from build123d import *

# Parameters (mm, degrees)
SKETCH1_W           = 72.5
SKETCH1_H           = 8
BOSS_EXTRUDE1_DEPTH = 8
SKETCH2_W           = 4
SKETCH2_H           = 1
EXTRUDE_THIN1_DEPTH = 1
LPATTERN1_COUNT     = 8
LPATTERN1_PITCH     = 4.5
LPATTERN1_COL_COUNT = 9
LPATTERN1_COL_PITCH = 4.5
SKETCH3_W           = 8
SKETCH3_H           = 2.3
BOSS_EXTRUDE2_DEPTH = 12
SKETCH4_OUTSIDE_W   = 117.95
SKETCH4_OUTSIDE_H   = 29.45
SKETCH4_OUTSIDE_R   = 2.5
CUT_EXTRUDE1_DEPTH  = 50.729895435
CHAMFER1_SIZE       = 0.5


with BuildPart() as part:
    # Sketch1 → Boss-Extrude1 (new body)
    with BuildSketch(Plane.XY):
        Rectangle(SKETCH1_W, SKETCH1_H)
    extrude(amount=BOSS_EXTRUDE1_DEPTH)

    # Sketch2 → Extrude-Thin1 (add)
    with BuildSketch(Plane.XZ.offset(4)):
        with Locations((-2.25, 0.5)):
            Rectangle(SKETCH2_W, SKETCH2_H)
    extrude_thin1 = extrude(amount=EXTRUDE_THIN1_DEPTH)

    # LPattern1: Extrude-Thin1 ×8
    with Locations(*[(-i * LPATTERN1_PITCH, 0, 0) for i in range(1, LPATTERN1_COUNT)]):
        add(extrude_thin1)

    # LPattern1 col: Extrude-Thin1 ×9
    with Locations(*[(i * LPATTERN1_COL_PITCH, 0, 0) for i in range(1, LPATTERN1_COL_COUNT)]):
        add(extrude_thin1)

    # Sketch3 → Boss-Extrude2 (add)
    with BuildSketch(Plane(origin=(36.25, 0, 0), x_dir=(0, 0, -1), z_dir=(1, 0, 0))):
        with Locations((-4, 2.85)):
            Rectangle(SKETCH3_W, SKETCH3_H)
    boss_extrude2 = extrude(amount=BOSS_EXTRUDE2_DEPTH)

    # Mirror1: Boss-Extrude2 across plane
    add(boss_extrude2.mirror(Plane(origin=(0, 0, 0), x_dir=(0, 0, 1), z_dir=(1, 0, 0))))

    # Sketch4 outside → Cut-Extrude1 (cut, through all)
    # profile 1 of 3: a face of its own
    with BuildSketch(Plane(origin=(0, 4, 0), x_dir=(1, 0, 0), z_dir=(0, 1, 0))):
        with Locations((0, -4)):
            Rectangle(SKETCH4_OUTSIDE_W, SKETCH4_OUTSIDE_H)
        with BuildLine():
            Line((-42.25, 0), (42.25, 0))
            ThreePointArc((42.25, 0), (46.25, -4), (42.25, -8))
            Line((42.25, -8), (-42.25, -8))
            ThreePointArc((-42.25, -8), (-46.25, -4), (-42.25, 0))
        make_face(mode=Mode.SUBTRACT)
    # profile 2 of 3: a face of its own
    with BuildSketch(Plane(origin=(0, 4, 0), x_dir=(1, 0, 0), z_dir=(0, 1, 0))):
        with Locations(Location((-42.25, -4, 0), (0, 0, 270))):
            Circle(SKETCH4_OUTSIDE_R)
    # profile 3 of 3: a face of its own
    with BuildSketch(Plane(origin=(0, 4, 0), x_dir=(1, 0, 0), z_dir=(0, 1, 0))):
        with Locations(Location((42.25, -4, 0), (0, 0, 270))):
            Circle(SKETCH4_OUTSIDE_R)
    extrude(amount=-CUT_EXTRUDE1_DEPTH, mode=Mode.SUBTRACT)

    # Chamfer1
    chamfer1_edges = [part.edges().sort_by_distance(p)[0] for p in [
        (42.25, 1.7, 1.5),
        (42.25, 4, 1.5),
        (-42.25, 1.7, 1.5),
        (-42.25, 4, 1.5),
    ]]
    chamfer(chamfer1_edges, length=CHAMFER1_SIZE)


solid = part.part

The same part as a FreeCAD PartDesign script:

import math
import FreeCAD as App
import Part
import Sketcher
from FreeCAD import Vector


def edges_at(feature, points):
    """Names of the edges that pass closest to the given points."""
    edges = feature.Shape.Edges
    near = lambda p: min(range(len(edges)), key=lambda i: edges[i].distToShape(Part.Vertex(*p))[0])
    return sorted({f"Edge{near(p) + 1}" for p in points})

doc = App.newDocument("Part")
params = doc.addObject("Spreadsheet::Sheet", "Params")
for row, (alias, value) in enumerate([
    ("sketch1_height", "8 mm"),
    ("sketch1_width", "72.5 mm"),
    ("pad1_length", "8 mm"),
    ("sketch2_width", "4 mm"),
    ("sketch2_height", "1 mm"),
    ("pad2_length", "1 mm"),
    ("linearpattern_pitch", "4.5 mm"),
    ("linearpattern2_pitch", "4.5 mm"),
    ("sketch3_height", "8 mm"),
    ("sketch3_width", "2.3 mm"),
    ("pad3_length", "12 mm"),
    ("sketch4_diameter", "5 mm"),
    ("sketch4_radius", "4 mm"),
    ("sketch4_width", "84.5 mm"),
    ("sketch4_width2", "117.95 mm"),
    ("sketch4_height", "29.45 mm"),
    ("pocket1_length", "50.729895 mm"),
    ("chamfer_size", "0.5 mm"),
], start=1):
    params.set(f"A{row}", alias)
    params.set(f"B{row}", "=" + value)
    params.setAlias(f"B{row}", alias)

body = doc.addObject("PartDesign::Body", "Body")

# Sketch on XY plane
sketch1 = body.newObject("Sketcher::SketchObject", "Sketch")
sketch1.AttachmentSupport = (doc.getObject("XY_Plane"), [""])
sketch1.MapMode = "FlatFace"
sketch1.addGeometry([
    Part.LineSegment(Vector(-36.25, 4, 0), Vector(-36.25, -4, 0)),
    Part.LineSegment(Vector(-36.25, -4, 0), Vector(36.25, -4, 0)),
    Part.LineSegment(Vector(36.25, -4, 0), Vector(36.25, 4, 0)),
    Part.LineSegment(Vector(36.25, 4, 0), Vector(-36.25, 4, 0)),
], False)
sketch1.addConstraint([
    Sketcher.Constraint("Coincident", 0, 2, 1, 1),
    Sketcher.Constraint("Coincident", 1, 2, 2, 1),
    Sketcher.Constraint("Coincident", 2, 2, 3, 1),
    Sketcher.Constraint("Coincident", 3, 2, 0, 1),
    Sketcher.Constraint("Vertical", 0),
    Sketcher.Constraint("Horizontal", 1),
    Sketcher.Constraint("Vertical", 2),
    Sketcher.Constraint("Horizontal", 3),
    Sketcher.Constraint("Symmetric", 0, 2, 2, 2, -1, 1),
    Sketcher.Constraint("DistanceY", 0, 2, 0, 1, 8.0),
    Sketcher.Constraint("DistanceX", 1, 1, 1, 2, 72.5),
])
sketch1.setExpression("Constraints[9]", "Params.sketch1_height")
sketch1.setExpression("Constraints[10]", "Params.sketch1_width")
pad1 = body.newObject("PartDesign::Pad", "Pad")
pad1.Profile = sketch1
pad1.setExpression("Length", "Params.pad1_length")

# Sketch on XZ plane
sketch2 = body.newObject("Sketcher::SketchObject", "Sketch001")
sketch2.AttachmentSupport = (doc.getObject("XZ_Plane"), [""])
sketch2.MapMode = "FlatFace"
sketch2.AttachmentOffset = App.Placement(Vector(0, 0, 4), App.Rotation())
sketch2.addGeometry([
    Part.LineSegment(Vector(-4.25, 1, 0), Vector(-4.25, 0, 0)),
    Part.LineSegment(Vector(-4.25, 0, 0), Vector(-0.25, 0, 0)),
    Part.LineSegment(Vector(-0.25, 0, 0), Vector(-0.25, 1, 0)),
    Part.LineSegment(Vector(-0.25, 1, 0), Vector(-4.25, 1, 0)),
], False)
sketch2.addConstraint([
    Sketcher.Constraint("Coincident", 0, 2, 1, 1),
    Sketcher.Constraint("Coincident", 1, 2, 2, 1),
    Sketcher.Constraint("Coincident", 2, 2, 3, 1),
    Sketcher.Constraint("Coincident", 3, 2, 0, 1),
    Sketcher.Constraint("Vertical", 0),
    Sketcher.Constraint("Horizontal", 1),
    Sketcher.Constraint("Vertical", 2),
    Sketcher.Constraint("Horizontal", 3),
    Sketcher.Constraint("PointOnObject", 0, 2, -1),
    Sketcher.Constraint("DistanceX", 1, 1, 1, 2, 4.0),
    Sketcher.Constraint("DistanceY", 0, 2, 0, 1, 1.0),
    Sketcher.Constraint("DistanceX", 0, 2, -1, 1, 4.25),
])
sketch2.setExpression("Constraints[9]", "Params.sketch2_width")
sketch2.setExpression("Constraints[10]", "Params.sketch2_height")
pad2 = body.newObject("PartDesign::Pad", "Pad001")
pad2.Profile = sketch2
pad2.setExpression("Length", "Params.pad2_length")
doc.recompute()

linearpattern = body.newObject("PartDesign::LinearPattern", "LinearPattern")
linearpattern.Originals = [pad2]
linearpattern.Direction = (doc.getObject("X_Axis"), [""])
linearpattern.Mode = "offset"
linearpattern.setExpression("Offset", "Params.linearpattern_pitch")
linearpattern.Occurrences = 8
linearpattern.Reversed = True
body.Tip = linearpattern
doc.recompute()

linearpattern2 = body.newObject("PartDesign::LinearPattern", "LinearPattern001")
linearpattern2.Originals = [pad2]
linearpattern2.Direction = (doc.getObject("X_Axis"), [""])
linearpattern2.Mode = "offset"
linearpattern2.setExpression("Offset", "Params.linearpattern2_pitch")
linearpattern2.Occurrences = 9
body.Tip = linearpattern2

# Sketch on YZ plane
sketch3 = body.newObject("Sketcher::SketchObject", "Sketch002")
sketch3.AttachmentSupport = (doc.getObject("YZ_Plane"), [""])
sketch3.MapMode = "FlatFace"
sketch3.AttachmentOffset = App.Placement(Vector(0, 0, 36.25), App.Rotation())
sketch3.addGeometry([
    Part.LineSegment(Vector(4, 8, 0), Vector(1.7, 8, 0)),
    Part.LineSegment(Vector(1.7, 8, 0), Vector(1.7, 0, 0)),
    Part.LineSegment(Vector(1.7, 0, 0), Vector(4, 0, 0)),
    Part.LineSegment(Vector(4, 0, 0), Vector(4, 8, 0)),
], False)
sketch3.addConstraint([
    Sketcher.Constraint("Coincident", 0, 2, 1, 1),
    Sketcher.Constraint("Coincident", 1, 2, 2, 1),
    Sketcher.Constraint("Coincident", 2, 2, 3, 1),
    Sketcher.Constraint("Coincident", 3, 2, 0, 1),
    Sketcher.Constraint("Horizontal", 0),
    Sketcher.Constraint("Vertical", 1),
    Sketcher.Constraint("Horizontal", 2),
    Sketcher.Constraint("Vertical", 3),
    Sketcher.Constraint("PointOnObject", 1, 2, -1),
    Sketcher.Constraint("DistanceY", 1, 2, 1, 1, 8.0),
    Sketcher.Constraint("DistanceX", 0, 2, 0, 1, 2.3),
    Sketcher.Constraint("DistanceX", -1, 1, 2, 2, 4.0),
])
sketch3.setExpression("Constraints[9]", "Params.sketch3_height")
sketch3.setExpression("Constraints[10]", "Params.sketch3_width")
pad3 = body.newObject("PartDesign::Pad", "Pad002")
pad3.Profile = sketch3
pad3.setExpression("Length", "Params.pad3_length")
doc.recompute()

mirrored = body.newObject("PartDesign::Mirrored", "Mirrored")
mirrored.Originals = [pad3]
mirrored.MirrorPlane = (doc.getObject("YZ_Plane"), [""])
body.Tip = mirrored

# Sketch on XZ plane
sketch4 = body.newObject("Sketcher::SketchObject", "Sketch003")
sketch4.AttachmentSupport = (doc.getObject("XZ_Plane"), [""])
sketch4.MapMode = "FlatFace"
sketch4.AttachmentOffset = App.Placement(Vector(0, 0, -4), App.Rotation())
sketch4.addGeometry([
    Part.LineSegment(Vector(-58.975, -10.725, 0), Vector(-58.975, 18.725, 0)),  # 0
    Part.LineSegment(Vector(-58.975, 18.725, 0), Vector(58.975, 18.725, 0)),  # 1
    Part.LineSegment(Vector(58.975, 18.725, 0), Vector(58.975, -10.725, 0)),  # 2
    Part.LineSegment(Vector(58.975, -10.725, 0), Vector(-58.975, -10.725, 0)),  # 3
    Part.ArcOfCircle(Part.Circle(Vector(-42.25, 4, 0), Vector(0, 0, 1), 4), math.radians(90), math.radians(270)),  # 4
    Part.LineSegment(Vector(-42.25, 0, 0), Vector(42.25, 0, 0)),  # 5
    Part.ArcOfCircle(Part.Circle(Vector(42.25, 4, 0), Vector(0, 0, 1), 4), math.radians(-90), math.radians(90)),  # 6
    Part.LineSegment(Vector(42.25, 8, 0), Vector(-42.25, 8, 0)),  # 7
    Part.Circle(Vector(-42.25, 4, 0), Vector(0, 0, 1), 2.5),  # 8
    Part.Circle(Vector(42.25, 4, 0), Vector(0, 0, 1), 2.5),  # 9
], False)
sketch4.addConstraint([
    Sketcher.Constraint("Coincident", 0, 2, 1, 1),
    Sketcher.Constraint("Coincident", 1, 2, 2, 1),
    Sketcher.Constraint("Coincident", 2, 2, 3, 1),
    Sketcher.Constraint("Coincident", 3, 2, 0, 1),
    Sketcher.Constraint("Tangent", 4, 2, 5, 1),
    Sketcher.Constraint("Tangent", 5, 2, 6, 1),
    Sketcher.Constraint("Tangent", 6, 2, 7, 1),
    Sketcher.Constraint("Tangent", 7, 2, 4, 1),
    Sketcher.Constraint("Vertical", 0),
    Sketcher.Constraint("Horizontal", 1),
    Sketcher.Constraint("Vertical", 2),
    Sketcher.Constraint("Horizontal", 3),
    Sketcher.Constraint("Horizontal", 5),
    Sketcher.Constraint("Horizontal", 7),
    Sketcher.Constraint("Coincident", 8, 3, 4, 3),
    Sketcher.Constraint("Coincident", 9, 3, 6, 3),
    Sketcher.Constraint("Equal", 8, 9),
    Sketcher.Constraint("Symmetric", 4, 2, 5, 2, -1, 1),
    Sketcher.Constraint("Diameter", 8, 5.0),
    Sketcher.Constraint("Radius", 4, 4.0),
    Sketcher.Constraint("DistanceX", 5, 1, 5, 2, 84.5),
    Sketcher.Constraint("DistanceX", 1, 1, 1, 2, 117.95),
    Sketcher.Constraint("DistanceY", 0, 1, 0, 2, 29.45),
    Sketcher.Constraint("DistanceX", 0, 2, -1, 1, 58.975),
    Sketcher.Constraint("DistanceY", -1, 1, 0, 2, 18.725),
])
sketch4.setExpression("Constraints[18]", "Params.sketch4_diameter")
sketch4.setExpression("Constraints[19]", "Params.sketch4_radius")
sketch4.setExpression("Constraints[20]", "Params.sketch4_width")
sketch4.setExpression("Constraints[21]", "Params.sketch4_width2")
sketch4.setExpression("Constraints[22]", "Params.sketch4_height")
pocket1 = body.newObject("PartDesign::Pocket", "Pocket")
pocket1.Profile = sketch4
pocket1.setExpression("Length", "Params.pocket1_length")
pocket1.Reversed = True
doc.recompute()

chamfer = body.newObject("PartDesign::Chamfer", "Chamfer")
chamfer.Base = (pocket1, edges_at(pocket1, [
    (42.25, 1.7, 1.5),
    (42.25, 4, 1.5),
    (-42.25, 1.7, 1.5),
    (-42.25, 4, 1.5),
]))
chamfer.setExpression("Size", "Params.chamfer_size")

doc.recompute()
